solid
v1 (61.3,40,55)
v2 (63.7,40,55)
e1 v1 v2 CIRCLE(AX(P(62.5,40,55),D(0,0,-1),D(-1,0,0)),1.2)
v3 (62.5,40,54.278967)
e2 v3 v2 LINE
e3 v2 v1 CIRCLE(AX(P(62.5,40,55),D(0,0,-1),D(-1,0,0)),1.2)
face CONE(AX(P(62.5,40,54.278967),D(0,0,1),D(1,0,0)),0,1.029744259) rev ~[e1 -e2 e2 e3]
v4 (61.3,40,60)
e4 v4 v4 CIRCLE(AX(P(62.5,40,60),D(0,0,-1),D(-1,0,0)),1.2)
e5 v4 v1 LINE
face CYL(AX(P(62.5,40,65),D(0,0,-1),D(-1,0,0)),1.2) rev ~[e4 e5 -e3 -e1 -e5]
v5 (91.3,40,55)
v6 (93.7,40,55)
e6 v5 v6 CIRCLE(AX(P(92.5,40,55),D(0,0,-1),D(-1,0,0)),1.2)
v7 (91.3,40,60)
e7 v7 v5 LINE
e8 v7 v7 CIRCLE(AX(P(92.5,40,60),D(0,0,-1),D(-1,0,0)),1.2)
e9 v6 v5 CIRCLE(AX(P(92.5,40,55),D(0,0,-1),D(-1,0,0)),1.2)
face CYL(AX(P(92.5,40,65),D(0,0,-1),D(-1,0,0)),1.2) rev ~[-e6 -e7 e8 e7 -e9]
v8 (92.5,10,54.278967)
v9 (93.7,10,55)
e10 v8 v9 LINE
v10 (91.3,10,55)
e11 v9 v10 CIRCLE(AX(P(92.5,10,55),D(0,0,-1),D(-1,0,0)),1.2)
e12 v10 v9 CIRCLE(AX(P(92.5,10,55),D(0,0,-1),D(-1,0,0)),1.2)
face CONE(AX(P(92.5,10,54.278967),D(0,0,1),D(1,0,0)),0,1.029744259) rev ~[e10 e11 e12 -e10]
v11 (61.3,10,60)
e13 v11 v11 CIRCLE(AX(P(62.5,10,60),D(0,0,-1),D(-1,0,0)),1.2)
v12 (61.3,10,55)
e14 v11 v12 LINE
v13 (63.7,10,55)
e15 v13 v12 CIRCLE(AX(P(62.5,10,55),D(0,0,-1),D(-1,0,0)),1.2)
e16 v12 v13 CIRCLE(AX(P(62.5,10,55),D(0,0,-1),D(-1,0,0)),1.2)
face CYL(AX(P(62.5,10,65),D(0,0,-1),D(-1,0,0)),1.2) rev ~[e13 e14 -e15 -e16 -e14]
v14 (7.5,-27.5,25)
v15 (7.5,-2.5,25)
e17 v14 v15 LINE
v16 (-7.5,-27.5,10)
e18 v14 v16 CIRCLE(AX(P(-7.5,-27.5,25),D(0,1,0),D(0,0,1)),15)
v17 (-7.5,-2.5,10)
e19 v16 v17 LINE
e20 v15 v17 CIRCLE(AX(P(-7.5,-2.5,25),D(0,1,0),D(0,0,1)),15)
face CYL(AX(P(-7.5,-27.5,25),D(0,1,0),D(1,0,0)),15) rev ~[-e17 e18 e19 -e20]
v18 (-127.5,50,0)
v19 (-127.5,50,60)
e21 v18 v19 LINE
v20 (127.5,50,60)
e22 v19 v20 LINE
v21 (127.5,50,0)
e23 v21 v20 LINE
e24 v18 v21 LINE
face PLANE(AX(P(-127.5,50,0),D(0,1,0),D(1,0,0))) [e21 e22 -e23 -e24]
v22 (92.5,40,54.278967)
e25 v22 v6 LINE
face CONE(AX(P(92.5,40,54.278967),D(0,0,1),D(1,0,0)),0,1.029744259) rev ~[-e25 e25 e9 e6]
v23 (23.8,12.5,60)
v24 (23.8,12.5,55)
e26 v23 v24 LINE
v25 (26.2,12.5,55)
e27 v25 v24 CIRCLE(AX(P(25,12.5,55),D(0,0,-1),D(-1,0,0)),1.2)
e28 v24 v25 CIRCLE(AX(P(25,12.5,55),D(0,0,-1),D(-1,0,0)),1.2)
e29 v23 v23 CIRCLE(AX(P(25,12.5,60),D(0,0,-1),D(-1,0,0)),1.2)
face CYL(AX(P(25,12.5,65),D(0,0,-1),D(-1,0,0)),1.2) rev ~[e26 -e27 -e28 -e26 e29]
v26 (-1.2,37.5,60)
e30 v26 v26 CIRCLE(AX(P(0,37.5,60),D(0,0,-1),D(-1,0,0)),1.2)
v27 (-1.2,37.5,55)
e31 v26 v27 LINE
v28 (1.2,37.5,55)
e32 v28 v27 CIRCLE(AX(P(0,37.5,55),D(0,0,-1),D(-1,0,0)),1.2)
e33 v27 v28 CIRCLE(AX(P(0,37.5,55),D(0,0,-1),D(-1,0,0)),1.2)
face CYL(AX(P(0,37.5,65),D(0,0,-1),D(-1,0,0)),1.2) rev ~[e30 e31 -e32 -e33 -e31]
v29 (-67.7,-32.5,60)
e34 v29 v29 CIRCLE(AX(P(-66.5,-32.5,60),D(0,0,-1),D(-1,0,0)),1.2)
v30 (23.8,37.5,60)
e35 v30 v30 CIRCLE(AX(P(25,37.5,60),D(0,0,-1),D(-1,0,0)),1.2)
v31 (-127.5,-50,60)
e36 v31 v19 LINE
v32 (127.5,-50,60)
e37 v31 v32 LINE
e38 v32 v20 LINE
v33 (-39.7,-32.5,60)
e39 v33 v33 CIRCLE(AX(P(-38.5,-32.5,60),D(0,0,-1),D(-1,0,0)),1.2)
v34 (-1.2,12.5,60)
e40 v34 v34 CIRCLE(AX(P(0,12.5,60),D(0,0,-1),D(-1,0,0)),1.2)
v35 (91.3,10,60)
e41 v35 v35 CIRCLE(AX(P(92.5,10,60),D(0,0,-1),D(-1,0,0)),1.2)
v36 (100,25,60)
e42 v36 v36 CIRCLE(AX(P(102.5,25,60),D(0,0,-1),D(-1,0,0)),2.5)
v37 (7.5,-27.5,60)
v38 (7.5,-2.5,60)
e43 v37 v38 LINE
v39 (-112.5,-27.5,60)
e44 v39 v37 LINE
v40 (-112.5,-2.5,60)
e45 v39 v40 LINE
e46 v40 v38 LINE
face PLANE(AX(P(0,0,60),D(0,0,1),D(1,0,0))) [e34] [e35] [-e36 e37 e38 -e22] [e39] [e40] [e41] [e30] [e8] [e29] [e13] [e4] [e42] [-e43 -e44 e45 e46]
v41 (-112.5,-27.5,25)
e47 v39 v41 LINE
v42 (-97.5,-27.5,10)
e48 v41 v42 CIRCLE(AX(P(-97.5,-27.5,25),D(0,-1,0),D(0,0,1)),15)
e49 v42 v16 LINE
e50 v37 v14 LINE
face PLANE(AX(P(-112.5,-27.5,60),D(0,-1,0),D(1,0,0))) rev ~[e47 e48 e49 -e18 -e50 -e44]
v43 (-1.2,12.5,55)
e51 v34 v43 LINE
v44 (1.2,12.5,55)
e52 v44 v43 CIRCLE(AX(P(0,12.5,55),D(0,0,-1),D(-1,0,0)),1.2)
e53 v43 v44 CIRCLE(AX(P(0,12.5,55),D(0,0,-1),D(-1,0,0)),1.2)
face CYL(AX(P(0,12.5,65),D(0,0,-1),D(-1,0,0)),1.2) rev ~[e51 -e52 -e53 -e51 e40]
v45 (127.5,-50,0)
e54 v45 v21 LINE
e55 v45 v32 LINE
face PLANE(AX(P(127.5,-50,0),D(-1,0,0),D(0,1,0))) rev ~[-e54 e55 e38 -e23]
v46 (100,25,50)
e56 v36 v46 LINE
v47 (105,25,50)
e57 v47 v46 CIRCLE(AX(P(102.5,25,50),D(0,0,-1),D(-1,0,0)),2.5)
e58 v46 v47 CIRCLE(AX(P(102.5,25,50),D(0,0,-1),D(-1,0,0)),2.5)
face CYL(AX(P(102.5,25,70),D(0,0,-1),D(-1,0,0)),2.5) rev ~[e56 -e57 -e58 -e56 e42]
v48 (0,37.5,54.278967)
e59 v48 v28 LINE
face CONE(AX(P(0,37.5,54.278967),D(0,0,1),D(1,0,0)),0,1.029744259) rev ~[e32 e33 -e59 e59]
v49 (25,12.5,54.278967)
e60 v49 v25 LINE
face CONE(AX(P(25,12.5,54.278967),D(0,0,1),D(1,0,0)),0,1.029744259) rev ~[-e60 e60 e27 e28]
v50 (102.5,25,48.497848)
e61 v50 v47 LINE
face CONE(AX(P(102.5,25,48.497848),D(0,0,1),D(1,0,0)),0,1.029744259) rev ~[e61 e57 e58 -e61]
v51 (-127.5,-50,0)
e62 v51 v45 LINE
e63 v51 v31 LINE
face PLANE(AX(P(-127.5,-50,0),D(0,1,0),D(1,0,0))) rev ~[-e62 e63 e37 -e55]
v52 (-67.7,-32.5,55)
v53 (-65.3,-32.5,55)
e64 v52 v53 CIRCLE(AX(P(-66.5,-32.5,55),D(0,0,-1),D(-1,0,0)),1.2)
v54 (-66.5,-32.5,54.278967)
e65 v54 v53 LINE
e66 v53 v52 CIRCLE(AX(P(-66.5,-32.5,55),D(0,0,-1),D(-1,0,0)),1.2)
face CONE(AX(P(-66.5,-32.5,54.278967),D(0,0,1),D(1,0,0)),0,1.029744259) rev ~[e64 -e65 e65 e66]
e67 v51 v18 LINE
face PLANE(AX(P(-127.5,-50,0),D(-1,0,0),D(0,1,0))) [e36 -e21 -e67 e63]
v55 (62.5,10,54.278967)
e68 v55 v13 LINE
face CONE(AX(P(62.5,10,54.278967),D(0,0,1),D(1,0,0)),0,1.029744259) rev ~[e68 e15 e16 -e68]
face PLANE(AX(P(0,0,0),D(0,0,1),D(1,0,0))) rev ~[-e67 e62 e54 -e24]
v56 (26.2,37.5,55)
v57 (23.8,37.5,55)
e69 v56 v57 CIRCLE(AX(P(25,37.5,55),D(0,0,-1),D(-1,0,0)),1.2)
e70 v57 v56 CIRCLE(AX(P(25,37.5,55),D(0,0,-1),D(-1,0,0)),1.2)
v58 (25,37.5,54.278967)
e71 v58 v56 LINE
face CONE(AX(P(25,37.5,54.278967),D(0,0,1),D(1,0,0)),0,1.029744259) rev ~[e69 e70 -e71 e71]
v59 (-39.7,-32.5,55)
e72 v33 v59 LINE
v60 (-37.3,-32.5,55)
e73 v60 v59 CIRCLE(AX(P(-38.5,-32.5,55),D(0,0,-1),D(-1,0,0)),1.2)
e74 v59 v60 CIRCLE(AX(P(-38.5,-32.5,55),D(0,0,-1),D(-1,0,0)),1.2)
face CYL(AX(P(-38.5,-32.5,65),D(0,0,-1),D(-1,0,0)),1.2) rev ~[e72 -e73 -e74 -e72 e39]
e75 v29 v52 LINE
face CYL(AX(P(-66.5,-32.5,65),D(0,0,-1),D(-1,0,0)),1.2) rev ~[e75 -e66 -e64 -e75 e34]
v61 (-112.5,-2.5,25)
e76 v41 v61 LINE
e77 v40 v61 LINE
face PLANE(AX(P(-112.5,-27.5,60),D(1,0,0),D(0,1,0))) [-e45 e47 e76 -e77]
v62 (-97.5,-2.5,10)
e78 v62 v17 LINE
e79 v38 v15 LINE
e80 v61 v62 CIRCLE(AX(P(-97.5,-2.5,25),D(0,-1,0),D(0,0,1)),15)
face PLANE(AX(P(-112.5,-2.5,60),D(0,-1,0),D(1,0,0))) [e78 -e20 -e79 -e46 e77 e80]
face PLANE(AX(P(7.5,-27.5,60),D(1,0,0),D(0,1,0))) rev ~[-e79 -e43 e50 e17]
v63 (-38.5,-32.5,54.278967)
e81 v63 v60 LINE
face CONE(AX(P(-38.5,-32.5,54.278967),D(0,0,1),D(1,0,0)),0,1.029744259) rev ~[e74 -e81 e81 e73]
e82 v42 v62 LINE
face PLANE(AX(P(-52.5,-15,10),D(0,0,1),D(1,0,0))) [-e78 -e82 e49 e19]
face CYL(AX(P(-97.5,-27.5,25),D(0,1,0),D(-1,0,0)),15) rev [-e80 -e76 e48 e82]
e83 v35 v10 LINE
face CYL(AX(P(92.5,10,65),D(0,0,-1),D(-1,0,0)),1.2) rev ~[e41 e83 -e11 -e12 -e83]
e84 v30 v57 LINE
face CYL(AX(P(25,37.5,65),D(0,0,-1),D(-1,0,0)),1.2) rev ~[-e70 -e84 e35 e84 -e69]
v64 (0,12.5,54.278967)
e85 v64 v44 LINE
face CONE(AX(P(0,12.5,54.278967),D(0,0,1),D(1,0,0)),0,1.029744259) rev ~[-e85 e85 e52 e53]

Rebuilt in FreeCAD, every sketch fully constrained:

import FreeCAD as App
import Part
import Sketcher
from FreeCAD import Vector
Q = App.Units.Quantity


def edges_at(feature, points):
    """Names of the edges that pass closest to the given points."""
    edges = feature.Shape.Edges
    near = lambda p: min(range(len(edges)), key=lambda i: edges[i].distToShape(Part.Vertex(*p))[0])
    return sorted({f"Edge{near(p) + 1}" for p in points})


def add_polygon(sketch, points):
    """Adds a closed chain of lines whose ends are joined by coincident constraints."""
    first, n = sketch.GeometryCount, len(points)
    for a, b in zip(points, points[1:] + points[:1]):
        sketch.addGeometry(Part.LineSegment(App.Vector(*a, 0), App.Vector(*b, 0)), False)
    for i in range(n):
        sketch.addConstraint(Sketcher.Constraint("Coincident", first + i, 2, first + (i + 1) % n, 1))

doc = App.newDocument("Part")
body = doc.addObject("PartDesign::Body", "Body")

# Sketch on XY plane
sketch1 = body.newObject("Sketcher::SketchObject", "Sketch")
sketch1.AttachmentSupport = (doc.getObject("XY_Plane"), [""])
sketch1.MapMode = "FlatFace"
add_polygon(sketch1, [(-128, 50), (-128, -50), (128, -50), (128, 50)])  # lines 0-3
sketch1.addConstraint([
    Sketcher.Constraint("Vertical", 0),
    Sketcher.Constraint("Horizontal", 1),
    Sketcher.Constraint("Vertical", 2),
    Sketcher.Constraint("Horizontal", 3),
    Sketcher.Constraint("Symmetric", 0, 2, 2, 2, -1, 1),
    Sketcher.Constraint("DistanceX", 1, 1, 1, 2, Q("255 mm")),
    Sketcher.Constraint("DistanceY", 0, 2, 0, 1, Q("100 mm")),
])
pad1 = body.newObject("PartDesign::Pad", "Pad")
pad1.Profile = sketch1
pad1.Length = 60

# Sketch on XY plane
sketch2 = body.newObject("Sketcher::SketchObject", "Sketch001")
sketch2.AttachmentSupport = (doc.getObject("XY_Plane"), [""])
sketch2.MapMode = "FlatFace"
sketch2.AttachmentOffset = App.Placement(Vector(0, 0, 60), App.Rotation())
add_polygon(sketch2, [(-112, -2), (-112, -28), (8, -28), (8, -2)])  # lines 0-3
sketch2.addConstraint([
    Sketcher.Constraint("Vertical", 0),
    Sketcher.Constraint("Horizontal", 1),
    Sketcher.Constraint("Vertical", 2),
    Sketcher.Constraint("Horizontal", 3),
    Sketcher.Constraint("DistanceX", 1, 1, 1, 2, Q("120 mm")),
    Sketcher.Constraint("DistanceY", 0, 2, 0, 1, Q("25 mm")),
    Sketcher.Constraint("DistanceX", 0, 2, -1, 1, Q("112.5 mm")),
    Sketcher.Constraint("DistanceY", 0, 2, -1, 1, Q("27.5 mm")),
])
pocket1 = body.newObject("PartDesign::Pocket", "Pocket")
pocket1.Profile = sketch2
pocket1.Length = 50
doc.recompute()

fillet = body.newObject("PartDesign::Fillet", "Fillet")
fillet.Base = (pocket1, edges_at(pocket1, [(7.5, -15, 10), (-112.5, -15, 10)]))
fillet.Radius = 15

# Sketch on XY plane
sketch3 = body.newObject("Sketcher::SketchObject", "Sketch002")
sketch3.AttachmentSupport = (doc.getObject("XY_Plane"), [""])
sketch3.MapMode = "FlatFace"
sketch3.AttachmentOffset = App.Placement(Vector(0, 0, 60), App.Rotation())
sketch3.addGeometry([
    Part.Circle(Vector(92.5, 10, 0), Vector(0, 0, 1), 1.2),  # 0
    Part.Circle(Vector(92.5, 40, 0), Vector(0, 0, 1), 1.2),  # 1
    Part.Circle(Vector(62.5, 10, 0), Vector(0, 0, 1), 1.2),  # 2
    Part.Circle(Vector(62.5, 40, 0), Vector(0, 0, 1), 1.2),  # 3
    Part.Circle(Vector(25, 12.5, 0), Vector(0, 0, 1), 1.2),  # 4
    Part.Circle(Vector(0, 12.5, 0), Vector(0, 0, 1), 1.2),  # 5
    Part.Circle(Vector(0, 37.5, 0), Vector(0, 0, 1), 1.2),  # 6
    Part.Circle(Vector(25, 37.5, 0), Vector(0, 0, 1), 1.2),  # 7
    Part.Circle(Vector(-38.5, -32.5, 0), Vector(0, 0, 1), 1.2),  # 8
    Part.Circle(Vector(-66.5, -32.5, 0), Vector(0, 0, 1), 1.2),  # 9
], False)
sketch3.addConstraint([
    Sketcher.Constraint("Equal", 0, 1),
    Sketcher.Constraint("Equal", 1, 2),
    Sketcher.Constraint("Equal", 2, 3),
    Sketcher.Constraint("Equal", 3, 4),
    Sketcher.Constraint("Equal", 4, 5),
    Sketcher.Constraint("Equal", 5, 6),
    Sketcher.Constraint("Equal", 6, 7),
    Sketcher.Constraint("Equal", 7, 8),
    Sketcher.Constraint("Equal", 8, 9),
    Sketcher.Constraint("PointOnObject", 5, 3, -2),
    Sketcher.Constraint("PointOnObject", 6, 3, -2),
    Sketcher.Constraint("Horizontal", 0, 3, 2, 3),
    Sketcher.Constraint("Horizontal", 1, 3, 3, 3),
    Sketcher.Constraint("Horizontal", 4, 3, 5, 3),
    Sketcher.Constraint("Horizontal", 6, 3, 7, 3),
    Sketcher.Constraint("Horizontal", 8, 3, 9, 3),
    Sketcher.Constraint("Vertical", 0, 3, 1, 3),
    Sketcher.Constraint("Vertical", 2, 3, 3, 3),
    Sketcher.Constraint("Vertical", 4, 3, 7, 3),
    Sketcher.Constraint("Diameter", 0, Q("2.4 mm")),
    Sketcher.Constraint("DistanceY", -1, 1, 0, 3, Q("10 mm")),
    Sketcher.Constraint("DistanceY", -1, 1, 1, 3, Q("40 mm")),
    Sketcher.Constraint("DistanceX", -1, 1, 4, 3, Q("25 mm")),
    Sketcher.Constraint("DistanceX", 2, 3, 0, 3, Q("30 mm")),
    Sketcher.Constraint("DistanceY", 5, 3, 6, 3, Q("25 mm")),
    Sketcher.Constraint("DistanceY", 8, 3, 5, 3, Q("45 mm")),
    Sketcher.Constraint("DistanceX", 8, 3, 2, 3, Q("101 mm")),
    Sketcher.Constraint("DistanceX", 9, 3, 8, 3, Q("28 mm")),
    Sketcher.Constraint("DistanceX", -1, 1, 0, 3, Q("92.5 mm")),
    Sketcher.Constraint("DistanceY", -1, 1, 4, 3, Q("12.5 mm")),
])
doc.recompute()
hole = body.newObject("PartDesign::Hole", "Hole")
hole.Profile = sketch3
hole.ThreadType = "None"
hole.Diameter = 2.4
hole.DepthType = "Dimension"
hole.Depth = 5
hole.DrillPoint = "Angled"
hole.DrillPointAngle = 118

# Sketch on XY plane
sketch4 = body.newObject("Sketcher::SketchObject", "Sketch003")
sketch4.AttachmentSupport = (doc.getObject("XY_Plane"), [""])
sketch4.MapMode = "FlatFace"
sketch4.AttachmentOffset = App.Placement(Vector(0, 0, 60), App.Rotation())
sketch4.addGeometry(Part.Circle(Vector(102.5, 25, 0), Vector(0, 0, 1), 2.5), False)
sketch4.addConstraint([
    Sketcher.Constraint("Diameter", 0, Q("5 mm")),
    Sketcher.Constraint("DistanceY", -1, 1, 0, 3, Q("25 mm")),
    Sketcher.Constraint("DistanceX", -1, 1, 0, 3, Q("102.5 mm")),
])
doc.recompute()
hole2 = body.newObject("PartDesign::Hole", "Hole001")
hole2.Profile = sketch4
hole2.ThreadType = "None"
hole2.Diameter = 5
hole2.DepthType = "Dimension"
hole2.Depth = 10
hole2.DrillPoint = "Angled"
hole2.DrillPointAngle = 118

doc.recompute()
